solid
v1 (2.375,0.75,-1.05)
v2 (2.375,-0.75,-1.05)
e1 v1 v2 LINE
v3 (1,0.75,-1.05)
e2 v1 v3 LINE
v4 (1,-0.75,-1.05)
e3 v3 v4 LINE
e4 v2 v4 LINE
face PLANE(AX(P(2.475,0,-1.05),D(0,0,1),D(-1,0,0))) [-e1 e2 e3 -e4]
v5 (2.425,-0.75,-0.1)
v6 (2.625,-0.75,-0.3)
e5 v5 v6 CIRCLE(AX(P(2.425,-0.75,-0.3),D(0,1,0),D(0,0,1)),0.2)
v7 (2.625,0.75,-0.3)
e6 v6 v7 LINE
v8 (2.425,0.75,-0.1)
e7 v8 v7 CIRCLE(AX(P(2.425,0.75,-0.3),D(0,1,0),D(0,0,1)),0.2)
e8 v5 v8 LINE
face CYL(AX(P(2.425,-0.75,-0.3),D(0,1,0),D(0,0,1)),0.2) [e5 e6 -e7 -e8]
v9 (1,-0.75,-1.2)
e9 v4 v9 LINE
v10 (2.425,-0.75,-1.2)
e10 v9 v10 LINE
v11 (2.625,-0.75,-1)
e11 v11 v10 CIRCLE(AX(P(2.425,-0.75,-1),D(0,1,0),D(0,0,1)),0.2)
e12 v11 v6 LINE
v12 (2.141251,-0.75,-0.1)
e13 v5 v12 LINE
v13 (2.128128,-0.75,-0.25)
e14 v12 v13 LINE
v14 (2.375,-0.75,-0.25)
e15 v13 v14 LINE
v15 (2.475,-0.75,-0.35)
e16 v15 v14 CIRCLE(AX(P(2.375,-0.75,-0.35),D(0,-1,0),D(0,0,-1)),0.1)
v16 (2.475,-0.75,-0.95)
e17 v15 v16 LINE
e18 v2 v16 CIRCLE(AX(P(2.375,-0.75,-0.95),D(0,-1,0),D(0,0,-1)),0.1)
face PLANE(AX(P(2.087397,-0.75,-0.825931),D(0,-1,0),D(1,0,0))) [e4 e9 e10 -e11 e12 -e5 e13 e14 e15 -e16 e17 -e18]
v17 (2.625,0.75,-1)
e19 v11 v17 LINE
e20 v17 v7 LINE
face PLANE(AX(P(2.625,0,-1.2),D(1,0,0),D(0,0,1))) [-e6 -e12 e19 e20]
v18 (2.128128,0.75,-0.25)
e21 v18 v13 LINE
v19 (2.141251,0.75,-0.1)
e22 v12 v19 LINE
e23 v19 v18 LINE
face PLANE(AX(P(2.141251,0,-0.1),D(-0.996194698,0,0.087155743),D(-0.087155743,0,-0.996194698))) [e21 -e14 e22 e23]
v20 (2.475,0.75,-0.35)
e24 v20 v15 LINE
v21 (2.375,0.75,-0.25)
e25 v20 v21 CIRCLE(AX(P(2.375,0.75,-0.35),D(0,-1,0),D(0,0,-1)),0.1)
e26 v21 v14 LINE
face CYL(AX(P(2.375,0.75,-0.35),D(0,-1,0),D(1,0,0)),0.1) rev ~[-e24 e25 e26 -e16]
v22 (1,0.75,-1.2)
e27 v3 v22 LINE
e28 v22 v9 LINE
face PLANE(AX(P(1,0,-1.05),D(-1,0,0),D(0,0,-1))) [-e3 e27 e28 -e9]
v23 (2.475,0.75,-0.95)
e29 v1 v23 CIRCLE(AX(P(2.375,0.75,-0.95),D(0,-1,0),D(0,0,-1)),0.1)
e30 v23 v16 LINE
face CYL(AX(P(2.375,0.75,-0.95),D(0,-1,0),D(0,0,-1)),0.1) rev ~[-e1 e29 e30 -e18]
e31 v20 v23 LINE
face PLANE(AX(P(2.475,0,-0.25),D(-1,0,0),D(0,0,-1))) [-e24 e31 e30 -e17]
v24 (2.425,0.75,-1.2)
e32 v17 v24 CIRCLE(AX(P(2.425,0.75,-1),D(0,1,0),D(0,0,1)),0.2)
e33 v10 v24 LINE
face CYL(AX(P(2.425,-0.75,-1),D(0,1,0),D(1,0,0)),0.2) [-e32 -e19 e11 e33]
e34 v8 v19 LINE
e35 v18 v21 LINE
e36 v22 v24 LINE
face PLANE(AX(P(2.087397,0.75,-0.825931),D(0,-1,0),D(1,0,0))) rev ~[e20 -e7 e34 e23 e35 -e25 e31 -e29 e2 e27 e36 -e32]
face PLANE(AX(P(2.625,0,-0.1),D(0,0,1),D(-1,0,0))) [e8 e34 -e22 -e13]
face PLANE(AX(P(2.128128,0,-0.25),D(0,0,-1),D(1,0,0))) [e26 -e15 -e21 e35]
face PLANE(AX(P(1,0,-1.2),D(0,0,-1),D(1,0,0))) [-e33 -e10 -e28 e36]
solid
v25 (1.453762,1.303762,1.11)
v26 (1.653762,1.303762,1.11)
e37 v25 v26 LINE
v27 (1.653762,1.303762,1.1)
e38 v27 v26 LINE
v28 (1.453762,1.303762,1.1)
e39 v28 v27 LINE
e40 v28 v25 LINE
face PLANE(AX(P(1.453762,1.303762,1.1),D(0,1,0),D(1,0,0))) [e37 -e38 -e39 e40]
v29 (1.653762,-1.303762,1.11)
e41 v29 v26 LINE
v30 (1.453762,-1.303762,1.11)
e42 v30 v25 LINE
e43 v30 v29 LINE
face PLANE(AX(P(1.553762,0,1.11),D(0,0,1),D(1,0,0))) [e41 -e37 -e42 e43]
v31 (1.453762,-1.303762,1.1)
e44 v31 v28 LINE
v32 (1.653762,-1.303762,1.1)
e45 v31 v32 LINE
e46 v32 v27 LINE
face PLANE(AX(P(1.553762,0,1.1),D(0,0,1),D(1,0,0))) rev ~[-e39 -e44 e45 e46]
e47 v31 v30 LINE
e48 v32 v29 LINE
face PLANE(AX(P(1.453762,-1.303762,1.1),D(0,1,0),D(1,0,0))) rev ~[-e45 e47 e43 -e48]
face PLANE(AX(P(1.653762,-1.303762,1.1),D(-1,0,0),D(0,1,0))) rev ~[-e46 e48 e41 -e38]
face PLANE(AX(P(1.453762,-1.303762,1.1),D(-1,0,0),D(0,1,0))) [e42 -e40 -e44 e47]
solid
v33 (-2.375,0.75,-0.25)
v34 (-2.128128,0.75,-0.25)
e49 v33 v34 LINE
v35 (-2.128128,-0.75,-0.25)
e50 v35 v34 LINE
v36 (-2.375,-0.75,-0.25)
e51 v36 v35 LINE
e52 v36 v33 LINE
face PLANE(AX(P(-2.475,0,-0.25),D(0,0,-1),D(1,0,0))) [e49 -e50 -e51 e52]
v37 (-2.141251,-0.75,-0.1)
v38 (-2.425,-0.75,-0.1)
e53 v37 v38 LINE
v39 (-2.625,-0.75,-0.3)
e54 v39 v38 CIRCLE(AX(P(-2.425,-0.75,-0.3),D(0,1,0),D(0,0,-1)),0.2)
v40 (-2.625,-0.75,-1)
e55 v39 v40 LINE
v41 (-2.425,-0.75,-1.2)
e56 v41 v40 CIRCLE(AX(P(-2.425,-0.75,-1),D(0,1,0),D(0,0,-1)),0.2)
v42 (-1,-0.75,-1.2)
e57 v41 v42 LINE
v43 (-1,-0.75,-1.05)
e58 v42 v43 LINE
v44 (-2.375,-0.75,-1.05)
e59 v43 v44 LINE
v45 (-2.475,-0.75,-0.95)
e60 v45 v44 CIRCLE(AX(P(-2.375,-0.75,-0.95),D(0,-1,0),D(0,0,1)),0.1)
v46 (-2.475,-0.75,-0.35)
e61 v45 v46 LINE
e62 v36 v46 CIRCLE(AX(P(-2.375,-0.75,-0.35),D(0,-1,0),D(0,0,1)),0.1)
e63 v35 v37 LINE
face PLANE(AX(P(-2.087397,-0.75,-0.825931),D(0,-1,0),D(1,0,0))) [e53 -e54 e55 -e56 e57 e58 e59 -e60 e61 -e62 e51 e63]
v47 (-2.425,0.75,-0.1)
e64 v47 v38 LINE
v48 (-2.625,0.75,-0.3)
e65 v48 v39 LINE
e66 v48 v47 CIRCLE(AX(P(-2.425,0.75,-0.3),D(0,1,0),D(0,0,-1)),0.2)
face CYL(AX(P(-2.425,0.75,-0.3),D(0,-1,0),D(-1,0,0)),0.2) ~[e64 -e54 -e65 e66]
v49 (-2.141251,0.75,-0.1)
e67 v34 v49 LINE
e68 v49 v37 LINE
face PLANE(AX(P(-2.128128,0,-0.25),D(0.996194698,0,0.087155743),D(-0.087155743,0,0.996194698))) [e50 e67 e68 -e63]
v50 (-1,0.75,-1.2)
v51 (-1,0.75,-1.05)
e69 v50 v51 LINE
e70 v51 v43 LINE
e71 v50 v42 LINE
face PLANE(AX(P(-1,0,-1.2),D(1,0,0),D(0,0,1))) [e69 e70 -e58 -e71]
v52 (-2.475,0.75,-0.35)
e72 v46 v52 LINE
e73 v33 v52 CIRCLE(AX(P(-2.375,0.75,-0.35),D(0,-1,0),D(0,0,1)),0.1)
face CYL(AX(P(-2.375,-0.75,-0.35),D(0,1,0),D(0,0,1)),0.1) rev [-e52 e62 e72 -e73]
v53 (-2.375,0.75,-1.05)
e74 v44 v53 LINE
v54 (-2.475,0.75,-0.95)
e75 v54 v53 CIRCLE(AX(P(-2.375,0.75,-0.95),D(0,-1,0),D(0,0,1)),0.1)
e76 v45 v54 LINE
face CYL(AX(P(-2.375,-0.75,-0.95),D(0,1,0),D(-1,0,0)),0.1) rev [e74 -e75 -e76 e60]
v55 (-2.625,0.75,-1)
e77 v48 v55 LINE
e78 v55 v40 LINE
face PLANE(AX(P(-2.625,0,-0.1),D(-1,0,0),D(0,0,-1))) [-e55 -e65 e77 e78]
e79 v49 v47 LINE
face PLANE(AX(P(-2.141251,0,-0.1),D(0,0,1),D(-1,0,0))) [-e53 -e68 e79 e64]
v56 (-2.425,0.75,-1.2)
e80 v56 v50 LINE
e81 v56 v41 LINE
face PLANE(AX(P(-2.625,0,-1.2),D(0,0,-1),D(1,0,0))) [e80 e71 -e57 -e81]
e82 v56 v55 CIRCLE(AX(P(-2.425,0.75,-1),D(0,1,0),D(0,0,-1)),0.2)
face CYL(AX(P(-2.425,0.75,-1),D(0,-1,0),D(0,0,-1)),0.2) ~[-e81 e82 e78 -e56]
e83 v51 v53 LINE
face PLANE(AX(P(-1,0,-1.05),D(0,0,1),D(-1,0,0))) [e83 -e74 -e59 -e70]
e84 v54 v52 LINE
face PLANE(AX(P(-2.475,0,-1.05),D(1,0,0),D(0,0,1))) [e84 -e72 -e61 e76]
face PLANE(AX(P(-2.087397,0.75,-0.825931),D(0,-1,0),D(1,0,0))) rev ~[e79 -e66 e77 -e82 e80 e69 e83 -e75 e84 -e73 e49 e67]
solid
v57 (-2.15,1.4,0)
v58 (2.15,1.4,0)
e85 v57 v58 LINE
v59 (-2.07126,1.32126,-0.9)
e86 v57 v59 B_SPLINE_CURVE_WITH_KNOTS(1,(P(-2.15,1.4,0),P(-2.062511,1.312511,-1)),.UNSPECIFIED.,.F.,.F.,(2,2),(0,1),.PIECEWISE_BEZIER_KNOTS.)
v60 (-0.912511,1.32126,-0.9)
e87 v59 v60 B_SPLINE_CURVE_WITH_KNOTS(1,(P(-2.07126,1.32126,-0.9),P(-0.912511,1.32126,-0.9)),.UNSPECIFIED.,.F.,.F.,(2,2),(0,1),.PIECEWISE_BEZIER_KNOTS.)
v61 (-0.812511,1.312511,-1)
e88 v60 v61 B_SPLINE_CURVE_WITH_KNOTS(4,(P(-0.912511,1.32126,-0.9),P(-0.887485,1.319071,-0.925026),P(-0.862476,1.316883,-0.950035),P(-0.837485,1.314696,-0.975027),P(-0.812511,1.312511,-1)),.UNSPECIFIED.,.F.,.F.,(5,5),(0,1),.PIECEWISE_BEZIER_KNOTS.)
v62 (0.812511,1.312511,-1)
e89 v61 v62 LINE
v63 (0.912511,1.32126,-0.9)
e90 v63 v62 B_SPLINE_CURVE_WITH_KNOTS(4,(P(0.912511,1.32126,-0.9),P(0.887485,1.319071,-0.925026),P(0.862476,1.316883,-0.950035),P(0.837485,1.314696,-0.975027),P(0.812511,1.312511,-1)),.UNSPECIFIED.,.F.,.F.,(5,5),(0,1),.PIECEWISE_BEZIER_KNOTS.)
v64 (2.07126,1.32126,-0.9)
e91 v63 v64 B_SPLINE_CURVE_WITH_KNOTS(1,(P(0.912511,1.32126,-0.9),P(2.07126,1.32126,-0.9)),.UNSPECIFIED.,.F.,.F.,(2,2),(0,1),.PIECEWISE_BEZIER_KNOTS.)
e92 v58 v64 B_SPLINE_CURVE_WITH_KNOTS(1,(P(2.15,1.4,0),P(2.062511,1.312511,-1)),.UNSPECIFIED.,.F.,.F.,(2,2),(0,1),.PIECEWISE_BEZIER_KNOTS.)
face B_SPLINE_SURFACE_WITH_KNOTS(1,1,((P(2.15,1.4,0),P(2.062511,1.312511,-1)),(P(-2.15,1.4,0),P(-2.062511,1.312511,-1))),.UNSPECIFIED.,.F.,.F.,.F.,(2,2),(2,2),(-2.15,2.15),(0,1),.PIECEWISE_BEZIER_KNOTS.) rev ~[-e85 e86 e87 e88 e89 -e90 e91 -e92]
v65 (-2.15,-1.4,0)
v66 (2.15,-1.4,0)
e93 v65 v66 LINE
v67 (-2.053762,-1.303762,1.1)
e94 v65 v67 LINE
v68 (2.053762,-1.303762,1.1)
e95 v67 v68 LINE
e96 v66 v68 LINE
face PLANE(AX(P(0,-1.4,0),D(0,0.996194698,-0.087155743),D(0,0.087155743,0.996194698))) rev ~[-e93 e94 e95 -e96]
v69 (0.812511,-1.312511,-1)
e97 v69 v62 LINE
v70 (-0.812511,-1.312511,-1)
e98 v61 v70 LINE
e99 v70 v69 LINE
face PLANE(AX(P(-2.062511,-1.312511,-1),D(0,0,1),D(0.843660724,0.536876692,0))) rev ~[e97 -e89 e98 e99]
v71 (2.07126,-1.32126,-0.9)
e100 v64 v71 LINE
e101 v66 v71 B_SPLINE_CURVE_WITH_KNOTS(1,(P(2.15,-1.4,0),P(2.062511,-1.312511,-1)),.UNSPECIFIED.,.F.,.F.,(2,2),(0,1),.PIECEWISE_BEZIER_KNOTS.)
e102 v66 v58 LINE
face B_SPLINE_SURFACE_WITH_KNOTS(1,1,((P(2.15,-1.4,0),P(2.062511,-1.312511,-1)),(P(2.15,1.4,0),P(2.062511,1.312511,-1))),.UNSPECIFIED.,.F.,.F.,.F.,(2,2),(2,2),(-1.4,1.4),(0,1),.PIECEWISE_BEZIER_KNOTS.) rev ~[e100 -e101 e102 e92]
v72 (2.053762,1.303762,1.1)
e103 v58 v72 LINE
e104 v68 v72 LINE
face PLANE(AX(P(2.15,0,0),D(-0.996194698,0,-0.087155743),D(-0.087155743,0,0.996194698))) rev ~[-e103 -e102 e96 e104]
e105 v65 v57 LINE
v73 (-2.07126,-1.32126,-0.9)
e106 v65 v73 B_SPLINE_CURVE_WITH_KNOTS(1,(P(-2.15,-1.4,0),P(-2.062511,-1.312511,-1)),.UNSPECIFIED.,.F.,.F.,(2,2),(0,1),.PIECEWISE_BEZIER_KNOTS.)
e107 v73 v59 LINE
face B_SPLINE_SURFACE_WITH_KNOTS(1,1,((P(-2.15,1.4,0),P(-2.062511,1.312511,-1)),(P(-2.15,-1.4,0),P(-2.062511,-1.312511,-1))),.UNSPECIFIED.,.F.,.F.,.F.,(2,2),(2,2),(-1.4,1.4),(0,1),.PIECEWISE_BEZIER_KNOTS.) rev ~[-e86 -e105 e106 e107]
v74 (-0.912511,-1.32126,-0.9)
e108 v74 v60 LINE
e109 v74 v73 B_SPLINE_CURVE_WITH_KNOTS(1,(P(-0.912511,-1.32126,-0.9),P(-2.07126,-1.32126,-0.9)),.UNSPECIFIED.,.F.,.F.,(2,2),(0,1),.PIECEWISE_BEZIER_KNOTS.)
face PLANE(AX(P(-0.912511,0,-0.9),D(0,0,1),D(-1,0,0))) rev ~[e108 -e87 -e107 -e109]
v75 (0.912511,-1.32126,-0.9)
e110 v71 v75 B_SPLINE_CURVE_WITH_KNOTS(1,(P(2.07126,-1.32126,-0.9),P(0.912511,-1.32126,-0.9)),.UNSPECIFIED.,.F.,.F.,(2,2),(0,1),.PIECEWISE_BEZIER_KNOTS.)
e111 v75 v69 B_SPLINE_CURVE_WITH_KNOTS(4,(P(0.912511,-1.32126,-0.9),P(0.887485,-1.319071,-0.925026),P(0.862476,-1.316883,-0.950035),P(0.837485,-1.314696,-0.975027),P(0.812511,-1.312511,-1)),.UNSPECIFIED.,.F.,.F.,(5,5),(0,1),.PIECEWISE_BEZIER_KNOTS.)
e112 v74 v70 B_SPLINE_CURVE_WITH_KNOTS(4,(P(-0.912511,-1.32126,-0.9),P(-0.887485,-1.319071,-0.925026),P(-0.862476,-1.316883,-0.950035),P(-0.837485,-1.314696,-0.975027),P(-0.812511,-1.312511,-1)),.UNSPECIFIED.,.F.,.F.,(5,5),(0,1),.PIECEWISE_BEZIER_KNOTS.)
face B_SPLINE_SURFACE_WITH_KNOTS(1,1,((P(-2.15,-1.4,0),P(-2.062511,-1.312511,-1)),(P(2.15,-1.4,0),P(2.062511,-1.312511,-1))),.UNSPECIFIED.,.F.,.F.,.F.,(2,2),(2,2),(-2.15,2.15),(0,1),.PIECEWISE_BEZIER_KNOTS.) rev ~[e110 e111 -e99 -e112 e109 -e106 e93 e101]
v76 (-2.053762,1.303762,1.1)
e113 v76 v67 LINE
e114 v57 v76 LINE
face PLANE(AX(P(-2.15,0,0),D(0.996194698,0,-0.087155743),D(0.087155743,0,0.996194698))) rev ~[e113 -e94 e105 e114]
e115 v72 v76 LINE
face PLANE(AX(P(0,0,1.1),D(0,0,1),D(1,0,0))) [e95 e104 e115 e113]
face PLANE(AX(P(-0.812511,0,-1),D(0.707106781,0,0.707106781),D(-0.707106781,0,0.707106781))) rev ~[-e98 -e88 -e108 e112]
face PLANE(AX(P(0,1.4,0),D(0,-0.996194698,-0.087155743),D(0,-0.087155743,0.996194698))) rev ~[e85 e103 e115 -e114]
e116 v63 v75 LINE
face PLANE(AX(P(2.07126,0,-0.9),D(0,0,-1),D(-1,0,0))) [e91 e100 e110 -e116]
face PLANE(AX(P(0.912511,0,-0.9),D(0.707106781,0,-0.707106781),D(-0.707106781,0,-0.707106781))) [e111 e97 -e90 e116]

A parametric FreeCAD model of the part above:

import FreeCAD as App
import Part
import Sketcher
from FreeCAD import Vector
Q = App.Units.Quantity


def edges_at(feature, points):
    """Names of the edges that pass closest to the given points."""
    edges = feature.Shape.Edges
    near = lambda p: min(range(len(edges)), key=lambda i: edges[i].distToShape(Part.Vertex(*p))[0])
    return sorted({f"Edge{near(p) + 1}" for p in points})


def add_polygon(sketch, points):
    """Adds a closed chain of lines whose ends are joined by coincident constraints."""
    first, n = sketch.GeometryCount, len(points)
    for a, b in zip(points, points[1:] + points[:1]):
        sketch.addGeometry(Part.LineSegment(App.Vector(*a, 0), App.Vector(*b, 0)), False)
    for i in range(n):
        sketch.addConstraint(Sketcher.Constraint("Coincident", first + i, 2, first + (i + 1) % n, 1))

doc = App.newDocument("Part")
body = doc.addObject("PartDesign::Body", "Body")

# Sketch on XY plane
sketch1 = body.newObject("Sketcher::SketchObject", "Sketch")
sketch1.AttachmentSupport = (doc.getObject("XY_Plane"), [""])
sketch1.MapMode = "FlatFace"
add_polygon(sketch1, [(-2.15, 1.4), (-2.15, -1.4), (2.15, -1.4), (2.15, 1.4)])  # lines 0-3
sketch1.addConstraint([
    Sketcher.Constraint("Vertical", 0),
    Sketcher.Constraint("Horizontal", 1),
    Sketcher.Constraint("Vertical", 2),
    Sketcher.Constraint("Horizontal", 3),
    Sketcher.Constraint("Symmetric", 0, 2, 2, 2, -1, 1),
    Sketcher.Constraint("DistanceX", 1, 1, 1, 2, Q("4.3 mm")),
    Sketcher.Constraint("DistanceY", 0, 2, 0, 1, Q("2.8 mm")),
])
pad1 = body.newObject("PartDesign::Pad", "Pad")
pad1.Profile = sketch1
pad1.Length = 1.1
pad1.TaperAngle = -5

# Sketch on XY plane
sketch2 = body.newObject("Sketcher::SketchObject", "Sketch001")
sketch2.AttachmentSupport = (doc.getObject("XY_Plane"), [""])
sketch2.MapMode = "FlatFace"
add_polygon(sketch2, [(-2.15, 1.4), (-2.15, -1.4), (2.15, -1.4), (2.15, 1.4)])  # lines 0-3
sketch2.addConstraint([
    Sketcher.Constraint("Vertical", 0),
    Sketcher.Constraint("Horizontal", 1),
    Sketcher.Constraint("Vertical", 2),
    Sketcher.Constraint("Horizontal", 3),
    Sketcher.Constraint("Symmetric", 0, 2, 2, 2, -1, 1),
    Sketcher.Constraint("DistanceX", 1, 1, 1, 2, Q("4.3 mm")),
    Sketcher.Constraint("DistanceY", 0, 2, 0, 1, Q("2.8 mm")),
])
pad2 = body.newObject("PartDesign::Pad", "Pad001")
pad2.Profile = sketch2
pad2.Length = 1
pad2.Reversed = True
pad2.TaperAngle = -5

# Sketch on XZ plane
sketch3 = body.newObject("Sketcher::SketchObject", "Sketch002")
sketch3.AttachmentSupport = (doc.getObject("XZ_Plane"), [""])
sketch3.MapMode = "FlatFace"
add_polygon(sketch3, [(2.062511, -1), (2.07126, -0.9), (0.912511, -0.9), (0.812511, -1)])  # lines 0-3
add_polygon(sketch3, [(-2.07126, -0.9), (-2.062511, -1), (-0.812511, -1), (-0.912511, -0.9)])  # lines 4-7
sketch3.addConstraint([
    Sketcher.Constraint("Horizontal", 1),
    Sketcher.Constraint("Horizontal", 3),
    Sketcher.Constraint("Horizontal", 5),
    Sketcher.Constraint("Horizontal", 7),
    Sketcher.Constraint("Symmetric", 3, 2, 4, 2, -2),
    Sketcher.Constraint("Symmetric", 1, 2, 6, 2, -2),
    Sketcher.Constraint("Perpendicular", 2, 6),
    Sketcher.Constraint("Equal", 3, 5),
    Sketcher.Constraint("Equal", 1, 7),
    Sketcher.Constraint("Angle", 0, Q("85 deg")),
    Sketcher.Constraint("DistanceY", 2, 2, -1, 1, Q("1 mm")),
    Sketcher.Constraint("DistanceX", 3, 1, 3, 2, Q("1.25 mm")),
    Sketcher.Constraint("DistanceY", 0, 2, -1, 1, Q("0.9 mm")),
    Sketcher.Constraint("DistanceX", -1, 1, 0, 2, Q("2.07126 mm")),
])
pocket1 = body.newObject("PartDesign::Pocket", "Pocket")
pocket1.Profile = sketch3
pocket1.Length = 25
pocket1.Midplane = True
body2 = doc.addObject("PartDesign::Body", "Body001")

# Sketch on XZ plane
sketch4 = body2.newObject("Sketcher::SketchObject", "Sketch003")
sketch4.AttachmentSupport = (doc.getObject("XZ_Plane001"), [""])
sketch4.MapMode = "FlatFace"
add_polygon(sketch4, [(-2.128128, -0.25), (-2.141251, -0.1), (-2.625, -0.1), (-2.625, -1.2), (-1, -1.2), (-1, -1.05), (-2.475, -1.05), (-2.475, -0.25)])  # lines 0-7
sketch4.addConstraint([
    Sketcher.Constraint("Horizontal", 1),
    Sketcher.Constraint("Vertical", 2),
    Sketcher.Constraint("Horizontal", 3),
    Sketcher.Constraint("Vertical", 4),
    Sketcher.Constraint("Horizontal", 5),
    Sketcher.Constraint("Vertical", 6),
    Sketcher.Constraint("Horizontal", 7),
    Sketcher.Constraint("Angle", 0, Q("95 deg")),
    Sketcher.Constraint("DistanceY", 2, 2, 2, 1, Q("1.1 mm")),
    Sketcher.Constraint("DistanceY", 6, 1, 6, 2, Q("0.8 mm")),
    Sketcher.Constraint("DistanceX", 3, 2, -1, 1, Q("1 mm")),
    Sketcher.Constraint("DistanceY", 4, 1, 4, 2, Q("0.15 mm")),
    Sketcher.Constraint("DistanceY", 0, 2, -1, 1, Q("0.1 mm")),
    Sketcher.Constraint("DistanceX", 3, 1, 3, 2, Q("1.625 mm")),
    Sketcher.Constraint("DistanceX", 5, 2, 5, 1, Q("1.475 mm")),
    Sketcher.Constraint("DistanceX", 1, 2, 1, 1, Q("0.483749 mm")),
])
pad3 = body2.newObject("PartDesign::Pad", "Pad002")
pad3.Profile = sketch4
pad3.Length = 1.5
pad3.Midplane = True
doc.recompute()

fillet = body2.newObject("PartDesign::Fillet", "Fillet")
fillet.Base = (pad3, edges_at(pad3, [(-2.625, 0, -0.1), (-2.625, 0, -1.2)]))
fillet.Radius = 0.2
doc.recompute()

fillet2 = body2.newObject("PartDesign::Fillet", "Fillet001")
fillet2.Base = (fillet, edges_at(fillet, [(-2.475, 0, -0.25), (-2.475, 0, -1.05)]))
fillet2.Radius = 0.1
body3 = doc.addObject("PartDesign::Body", "Body002")

# Sketch on XZ plane
sketch5 = body3.newObject("Sketcher::SketchObject", "Sketch004")
sketch5.AttachmentSupport = (doc.getObject("XZ_Plane002"), [""])
sketch5.MapMode = "FlatFace"
add_polygon(sketch5, [(2.141251, -0.1), (2.128128, -0.25), (2.475, -0.25), (2.475, -1.05), (1, -1.05), (1, -1.2), (2.625, -1.2), (2.625, -0.1)])  # lines 0-7
sketch5.addConstraint([
    Sketcher.Constraint("Horizontal", 1),
    Sketcher.Constraint("Vertical", 2),
    Sketcher.Constraint("Horizontal", 3),
    Sketcher.Constraint("Vertical", 4),
    Sketcher.Constraint("Horizontal", 5),
    Sketcher.Constraint("Vertical", 6),
    Sketcher.Constraint("Horizontal", 7),
    Sketcher.Constraint("Angle", 0, Q("-95 deg")),
    Sketcher.Constraint("DistanceY", 2, 2, 2, 1, Q("0.8 mm")),
    Sketcher.Constraint("DistanceY", 6, 1, 6, 2, Q("1.1 mm")),
    Sketcher.Constraint("DistanceX", -1, 1, 3, 2, Q("1 mm")),
    Sketcher.Constraint("DistanceY", 4, 2, 4, 1, Q("0.15 mm")),
    Sketcher.Constraint("DistanceY", 4, 2, -1, 1, Q("1.2 mm")),
    Sketcher.Constraint("DistanceX", 3, 2, 3, 1, Q("1.475 mm")),
    Sketcher.Constraint("DistanceX", 5, 1, 5, 2, Q("1.625 mm")),
    Sketcher.Constraint("DistanceX", 7, 2, 7, 1, Q("0.483749 mm")),
])
pad4 = body3.newObject("PartDesign::Pad", "Pad003")
pad4.Profile = sketch5
pad4.Length = 1.5
pad4.Midplane = True
doc.recompute()

fillet3 = body3.newObject("PartDesign::Fillet", "Fillet002")
fillet3.Base = (pad4, edges_at(pad4, [(2.625, 0, -0.1), (2.625, 0, -1.2)]))
fillet3.Radius = 0.2
doc.recompute()

fillet4 = body3.newObject("PartDesign::Fillet", "Fillet003")
fillet4.Base = (fillet3, edges_at(fillet3, [(2.475, 0, -1.05), (2.475, 0, -0.25)]))
fillet4.Radius = 0.1
body4 = doc.addObject("PartDesign::Body", "Body003")

# Sketch on XY plane
sketch6 = body4.newObject("Sketcher::SketchObject", "Sketch005")
sketch6.AttachmentSupport = (doc.getObject("XY_Plane003"), [""])
sketch6.MapMode = "FlatFace"
sketch6.AttachmentOffset = App.Placement(Vector(0, 0, 1.1), App.Rotation())
add_polygon(sketch6, [(1.453762, 1.303762), (1.453762, -1.303762), (1.653762, -1.303762), (1.653762, 1.303762)])  # lines 0-3
sketch6.addConstraint([
    Sketcher.Constraint("Vertical", 0),
    Sketcher.Constraint("Horizontal", 1),
    Sketcher.Constraint("Vertical", 2),
    Sketcher.Constraint("Horizontal", 3),
    Sketcher.Constraint("DistanceX", 1, 1, 1, 2, Q("0.2 mm")),
    Sketcher.Constraint("DistanceY", 0, 2, 0, 1, Q("2.607525 mm")),
    Sketcher.Constraint("DistanceX", -1, 1, 0, 2, Q("1.453762 mm")),
    Sketcher.Constraint("DistanceY", 0, 2, -1, 1, Q("1.303762 mm")),
])
pad5 = body4.newObject("PartDesign::Pad", "Pad004")
pad5.Profile = sketch6
pad5.Length = 0.01

doc.recompute()
